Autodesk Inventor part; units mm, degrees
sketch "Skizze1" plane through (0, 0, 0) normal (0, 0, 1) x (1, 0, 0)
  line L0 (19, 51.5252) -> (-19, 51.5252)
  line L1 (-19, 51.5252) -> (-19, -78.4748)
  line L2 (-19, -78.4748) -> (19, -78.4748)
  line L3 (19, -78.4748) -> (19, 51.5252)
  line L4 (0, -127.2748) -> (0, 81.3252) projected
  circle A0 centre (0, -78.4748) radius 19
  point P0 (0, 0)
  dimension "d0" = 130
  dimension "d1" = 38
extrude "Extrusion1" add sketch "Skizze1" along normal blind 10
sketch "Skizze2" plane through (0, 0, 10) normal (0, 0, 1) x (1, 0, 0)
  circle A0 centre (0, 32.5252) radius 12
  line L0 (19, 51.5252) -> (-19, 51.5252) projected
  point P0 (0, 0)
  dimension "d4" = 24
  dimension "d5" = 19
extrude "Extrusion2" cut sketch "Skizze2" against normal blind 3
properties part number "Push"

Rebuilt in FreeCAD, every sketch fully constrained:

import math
import FreeCAD as App
import Part
import Sketcher

V = App.Vector
Q = App.Units.Quantity

doc = App.newDocument("Part")
body = doc.addObject("PartDesign::Body", "Body")

# Sketch on XY plane
sketch1 = body.newObject("Sketcher::SketchObject", "Sketch")
sketch1.AttachmentSupport = (doc.getObject("XY_Plane"), [""])
sketch1.MapMode = "FlatFace"
sketch1.addGeometry([
    Part.LineSegment(V(19, -78.4748, 0), V(19, 51.5252, 0)),
    Part.LineSegment(V(19, 51.5252, 0), V(-19, 51.5252, 0)),
    Part.LineSegment(V(-19, 51.5252, 0), V(-19, -78.4748, 0)),
    Part.ArcOfCircle(Part.Circle(V(0, -78.4748, 0), V(0, 0, 1), 19), math.radians(180), math.radians(360)),
], False)
sketch1.addConstraint([
    Sketcher.Constraint("Coincident", 0, 2, 1, 1),
    Sketcher.Constraint("Coincident", 1, 2, 2, 1),
    Sketcher.Constraint("Tangent", 2, 2, 3, 1),
    Sketcher.Constraint("Tangent", 3, 2, 0, 1),
    Sketcher.Constraint("Vertical", 0),
    Sketcher.Constraint("Horizontal", 1),
    Sketcher.Constraint("Vertical", 2),
    Sketcher.Constraint("PointOnObject", 3, 3, -2),
    Sketcher.Constraint("Radius", 3, Q("19 mm")),
    Sketcher.Constraint("DistanceY", 0, 1, 0, 2, Q("130 mm")),
    Sketcher.Constraint("DistanceY", 3, 3, -1, 1, Q("78.4748 mm")),
])
pad1 = body.newObject("PartDesign::Pad", "Pad")
pad1.Profile = sketch1
pad1.Length = 10

# Sketch on XY plane
sketch2 = body.newObject("Sketcher::SketchObject", "Sketch001")
sketch2.AttachmentSupport = (doc.getObject("XY_Plane"), [""])
sketch2.MapMode = "FlatFace"
sketch2.AttachmentOffset = App.Placement(V(0, 0, 10), App.Rotation())
sketch2.addGeometry(Part.Circle(V(0, 32.5252, 0), V(0, 0, 1), 12), False)
sketch2.addConstraint([
    Sketcher.Constraint("PointOnObject", 0, 3, -2),
    Sketcher.Constraint("Diameter", 0, Q("24 mm")),
    Sketcher.Constraint("DistanceY", -1, 1, 0, 3, Q("32.5252 mm")),
])
pocket1 = body.newObject("PartDesign::Pocket", "Pocket")
pocket1.Profile = sketch2
pocket1.Length = 3

doc.recompute()
